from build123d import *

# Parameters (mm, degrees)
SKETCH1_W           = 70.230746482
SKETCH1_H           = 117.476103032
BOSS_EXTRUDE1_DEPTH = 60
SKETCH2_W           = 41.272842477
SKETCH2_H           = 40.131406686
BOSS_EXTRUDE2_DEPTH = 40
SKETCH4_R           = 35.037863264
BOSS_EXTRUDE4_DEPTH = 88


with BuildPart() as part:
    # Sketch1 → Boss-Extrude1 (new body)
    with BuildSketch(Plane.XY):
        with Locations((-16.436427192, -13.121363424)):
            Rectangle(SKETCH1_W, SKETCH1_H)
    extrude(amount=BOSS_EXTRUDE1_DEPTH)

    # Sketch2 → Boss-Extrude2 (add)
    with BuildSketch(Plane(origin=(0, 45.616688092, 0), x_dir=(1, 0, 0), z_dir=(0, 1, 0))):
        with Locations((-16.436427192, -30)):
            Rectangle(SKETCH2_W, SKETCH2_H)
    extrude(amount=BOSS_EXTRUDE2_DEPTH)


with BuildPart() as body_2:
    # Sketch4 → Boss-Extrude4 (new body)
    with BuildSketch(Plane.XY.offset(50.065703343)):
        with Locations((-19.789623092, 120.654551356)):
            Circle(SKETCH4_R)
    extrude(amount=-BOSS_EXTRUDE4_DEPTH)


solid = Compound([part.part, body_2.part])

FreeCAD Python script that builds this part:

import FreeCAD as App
import Part
import Sketcher

V = App.Vector

doc = App.newDocument("Part")
body = doc.addObject("PartDesign::Body", "Body")

# Sketch on XY plane
sketch1 = doc.addObject("Sketcher::SketchObject", "Sketch")
body.addObject(sketch1)
sketch1.AttachmentSupport = (doc.XY_Plane, [""])
sketch1.MapMode = "FlatFace"
sketch1.addGeometry([
    Part.LineSegment(V(-52, 46, 0), V(-52, -72, 0)),
    Part.LineSegment(V(-52, -72, 0), V(19, -72, 0)),
    Part.LineSegment(V(19, -72, 0), V(19, 46, 0)),
    Part.LineSegment(V(19, 46, 0), V(-52, 46, 0)),
], False)
sketch1.addConstraint([
    Sketcher.Constraint("Coincident", 0, 2, 1, 1),
    Sketcher.Constraint("Coincident", 1, 2, 2, 1),
    Sketcher.Constraint("Coincident", 2, 2, 3, 1),
    Sketcher.Constraint("Coincident", 3, 2, 0, 1),
    Sketcher.Constraint("Vertical", 0),
    Sketcher.Constraint("Horizontal", 1),
    Sketcher.Constraint("Vertical", 2),
    Sketcher.Constraint("Horizontal", 3),
    Sketcher.Constraint("DistanceX", 0, 2, -1, 1, 51.5518),
    Sketcher.Constraint("DistanceX", 1, 1, 1, 2, 70.230746),
    Sketcher.Constraint("DistanceY", 0, 2, 0, 1, 117.476103),
    Sketcher.Constraint("DistanceY", -1, 1, 2, 2, 45.616688),
])
pad1 = doc.addObject("PartDesign::Pad", "Pad")
body.addObject(pad1)
pad1.Profile = sketch1
pad1.Length = 60

# Sketch on XZ plane
sketch2 = doc.addObject("Sketcher::SketchObject", "Sketch001")
body.addObject(sketch2)
sketch2.AttachmentSupport = (doc.XZ_Plane, [""])
sketch2.MapMode = "FlatFace"
sketch2.AttachmentOffset = App.Placement(V(0, 0, -45.616688), App.Rotation())
sketch2.addGeometry([
    Part.LineSegment(V(-37, 10, 0), V(-37, 50, 0)),
    Part.LineSegment(V(-37, 50, 0), V(4, 50, 0)),
    Part.LineSegment(V(4, 50, 0), V(4, 10, 0)),
    Part.LineSegment(V(4, 10, 0), V(-37, 10, 0)),
], False)
sketch2.addConstraint([
    Sketcher.Constraint("Coincident", 0, 2, 1, 1),
    Sketcher.Constraint("Coincident", 1, 2, 2, 1),
    Sketcher.Constraint("Coincident", 2, 2, 3, 1),
    Sketcher.Constraint("Coincident", 3, 2, 0, 1),
    Sketcher.Constraint("Vertical", 0),
    Sketcher.Constraint("Horizontal", 1),
    Sketcher.Constraint("Vertical", 2),
    Sketcher.Constraint("Horizontal", 3),
    Sketcher.Constraint("DistanceX", 1, 1, 1, 2, 41.272842),
    Sketcher.Constraint("DistanceY", 0, 1, 0, 2, 40.131407),
    Sketcher.Constraint("DistanceX", 0, 2, -1, 1, 37.072848),
    Sketcher.Constraint("DistanceY", -1, 1, 0, 2, 50.065703),
])
pad2 = doc.addObject("PartDesign::Pad", "Pad001")
body.addObject(pad2)
pad2.Profile = sketch2
pad2.Length = 40
pad2.Reversed = True
body2 = doc.addObject("PartDesign::Body", "Body001")

# Sketch on XY plane
sketch3 = doc.addObject("Sketcher::SketchObject", "Sketch002")
body2.addObject(sketch3)
sketch3.AttachmentSupport = (doc.getObject("XY_Plane001"), [""])
sketch3.MapMode = "FlatFace"
sketch3.AttachmentOffset = App.Placement(V(0, 0, 50.065703), App.Rotation())
sketch3.addGeometry(Part.Circle(V(-20, 121, 0), V(0, 0, 1), 35), False)
sketch3.addConstraint([
    Sketcher.Constraint("Diameter", 0, 70.075727),
    Sketcher.Constraint("DistanceY", -1, 1, 0, 3, 120.654551),
    Sketcher.Constraint("DistanceX", 0, 3, -1, 1, 19.789623),
])
pad3 = doc.addObject("PartDesign::Pad", "Pad002")
body2.addObject(pad3)
pad3.Profile = sketch3
pad3.Length = 88
pad3.Reversed = True

doc.recompute()
